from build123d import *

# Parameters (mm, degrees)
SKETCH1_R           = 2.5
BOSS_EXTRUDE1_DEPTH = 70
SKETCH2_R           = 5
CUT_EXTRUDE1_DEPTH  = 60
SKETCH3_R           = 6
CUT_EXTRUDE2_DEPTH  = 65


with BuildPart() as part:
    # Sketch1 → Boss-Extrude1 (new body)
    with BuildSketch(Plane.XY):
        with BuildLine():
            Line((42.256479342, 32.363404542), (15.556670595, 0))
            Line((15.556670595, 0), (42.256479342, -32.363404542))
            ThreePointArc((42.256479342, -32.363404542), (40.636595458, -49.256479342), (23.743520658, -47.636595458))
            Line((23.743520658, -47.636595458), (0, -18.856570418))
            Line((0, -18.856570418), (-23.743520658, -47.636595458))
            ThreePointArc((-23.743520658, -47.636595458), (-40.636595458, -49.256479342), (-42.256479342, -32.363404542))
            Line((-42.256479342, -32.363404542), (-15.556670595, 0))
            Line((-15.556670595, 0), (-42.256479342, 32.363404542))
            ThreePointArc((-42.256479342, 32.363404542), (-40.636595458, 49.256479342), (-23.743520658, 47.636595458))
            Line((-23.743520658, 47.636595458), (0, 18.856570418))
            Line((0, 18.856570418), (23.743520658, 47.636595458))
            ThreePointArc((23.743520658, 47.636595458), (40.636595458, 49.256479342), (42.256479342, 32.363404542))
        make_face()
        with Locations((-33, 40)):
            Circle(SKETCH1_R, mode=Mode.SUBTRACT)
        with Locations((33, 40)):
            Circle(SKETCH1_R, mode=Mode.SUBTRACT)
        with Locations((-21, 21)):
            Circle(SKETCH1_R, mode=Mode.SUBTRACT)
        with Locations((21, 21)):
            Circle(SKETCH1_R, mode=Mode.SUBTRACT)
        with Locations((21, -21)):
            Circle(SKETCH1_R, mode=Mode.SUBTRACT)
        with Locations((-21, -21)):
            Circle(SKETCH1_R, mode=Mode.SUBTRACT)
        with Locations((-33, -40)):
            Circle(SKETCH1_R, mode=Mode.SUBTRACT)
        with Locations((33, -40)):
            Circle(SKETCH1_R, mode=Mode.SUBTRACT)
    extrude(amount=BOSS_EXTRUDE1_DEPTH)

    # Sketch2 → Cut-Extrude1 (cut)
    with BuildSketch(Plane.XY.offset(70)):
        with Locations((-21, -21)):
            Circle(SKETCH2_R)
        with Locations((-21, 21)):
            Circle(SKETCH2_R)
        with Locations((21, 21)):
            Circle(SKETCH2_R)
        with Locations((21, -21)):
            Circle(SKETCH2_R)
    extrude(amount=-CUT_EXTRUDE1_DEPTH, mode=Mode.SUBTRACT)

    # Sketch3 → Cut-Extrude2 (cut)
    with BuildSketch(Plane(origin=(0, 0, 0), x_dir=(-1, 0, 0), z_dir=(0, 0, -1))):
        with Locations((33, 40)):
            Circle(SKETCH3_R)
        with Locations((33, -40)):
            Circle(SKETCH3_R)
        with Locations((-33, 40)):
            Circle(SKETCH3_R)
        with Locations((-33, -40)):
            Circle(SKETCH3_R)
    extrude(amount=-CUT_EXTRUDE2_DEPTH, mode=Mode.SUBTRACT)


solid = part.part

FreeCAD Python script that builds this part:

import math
import FreeCAD as App
import Part
import Sketcher
from FreeCAD import Vector

doc = App.newDocument("Part")
params = doc.addObject("Spreadsheet::Sheet", "Params")
for row, (alias, value) in enumerate([
    ("sketch1_diameter", "5 mm"),
    ("sketch1_radius", "12 mm"),
    ("pad1_length", "70 mm"),
    ("sketch2_diameter", "10 mm"),
    ("pocket1_length", "60 mm"),
    ("sketch3_diameter", "12 mm"),
    ("pocket2_length", "65 mm"),
], start=1):
    params.set(f"A{row}", alias)
    params.set(f"B{row}", "=" + value)
    params.setAlias(f"B{row}", alias)

body = doc.addObject("PartDesign::Body", "Body")

sketch1 = body.newObject("Sketcher::SketchObject", "Sketch")
sketch1.AttachmentSupport = (doc.getObject("XY_Plane"), [""])
sketch1.MapMode = "FlatFace"
sketch1.addGeometry([
    Part.LineSegment(Vector(15.6, 0, 0), Vector(42.3, 32.4, 0)),
    Part.ArcOfCircle(Part.Circle(Vector(33, 40, 0), Vector(0, 0, 1), 12), math.radians(-40), math.radians(140)),
    Part.LineSegment(Vector(23.7, 47.6, 0), Vector(0, 18.9, 0)),
    Part.LineSegment(Vector(0, 18.9, 0), Vector(-23.7, 47.6, 0)),
    Part.ArcOfCircle(Part.Circle(Vector(-33, 40, 0), Vector(0, 0, 1), 12), math.radians(40), math.radians(220)),
    Part.LineSegment(Vector(-42.3, 32.4, 0), Vector(-15.6, 0, 0)),
    Part.LineSegment(Vector(-15.6, 0, 0), Vector(-42.3, -32.4, 0)),
    Part.ArcOfCircle(Part.Circle(Vector(-33, -40, 0), Vector(0, 0, 1), 12), math.radians(140), math.radians(320)),
    Part.LineSegment(Vector(-23.7, -47.6, 0), Vector(0, -18.9, 0)),
    Part.LineSegment(Vector(0, -18.9, 0), Vector(23.7, -47.6, 0)),
    Part.ArcOfCircle(Part.Circle(Vector(33, -40, 0), Vector(0, 0, 1), 12), math.radians(-140), math.radians(40)),
    Part.LineSegment(Vector(42.3, -32.4, 0), Vector(15.6, 0, 0)),
    Part.Circle(Vector(33, -40, 0), Vector(0, 0, 1), 2.5),
    Part.Circle(Vector(21, -21, 0), Vector(0, 0, 1), 2.5),
    Part.Circle(Vector(-33, -40, 0), Vector(0, 0, 1), 2.5),
    Part.Circle(Vector(-21, -21, 0), Vector(0, 0, 1), 2.5),
    Part.Circle(Vector(21, 21, 0), Vector(0, 0, 1), 2.5),
    Part.Circle(Vector(33, 40, 0), Vector(0, 0, 1), 2.5),
    Part.Circle(Vector(-21, 21, 0), Vector(0, 0, 1), 2.5),
    Part.Circle(Vector(-33, 40, 0), Vector(0, 0, 1), 2.5),
], False)
sketch1.addConstraint([
    Sketcher.Constraint("Tangent", 0, 2, 1, 1),
    Sketcher.Constraint("Tangent", 1, 2, 2, 1),
    Sketcher.Constraint("Coincident", 2, 2, 3, 1),
    Sketcher.Constraint("Tangent", 3, 2, 4, 1),
    Sketcher.Constraint("Tangent", 4, 2, 5, 1),
    Sketcher.Constraint("Coincident", 5, 2, 6, 1),
    Sketcher.Constraint("Tangent", 6, 2, 7, 1),
    Sketcher.Constraint("Tangent", 7, 2, 8, 1),
    Sketcher.Constraint("Coincident", 8, 2, 9, 1),
    Sketcher.Constraint("Tangent", 9, 2, 10, 1),
    Sketcher.Constraint("Tangent", 10, 2, 11, 1),
    Sketcher.Constraint("Coincident", 11, 2, 0, 1),
    Sketcher.Constraint("Coincident", 12, 3, 10, 3),
    Sketcher.Constraint("Coincident", 14, 3, 7, 3),
    Sketcher.Constraint("Coincident", 17, 3, 1, 3),
    Sketcher.Constraint("Coincident", 19, 3, 4, 3),
    Sketcher.Constraint("Equal", 1, 4),
    Sketcher.Constraint("Equal", 4, 7),
    Sketcher.Constraint("Equal", 7, 10),
    Sketcher.Constraint("Equal", 12, 13),
    Sketcher.Constraint("Equal", 13, 14),
    Sketcher.Constraint("Equal", 14, 15),
    Sketcher.Constraint("Equal", 15, 16),
    Sketcher.Constraint("Equal", 16, 17),
    Sketcher.Constraint("Equal", 17, 18),
    Sketcher.Constraint("Equal", 18, 19),
    Sketcher.Constraint("Symmetric", 1, 3, 7, 3, -1, 1),
    Sketcher.Constraint("Symmetric", 4, 3, 10, 3, -1, 1),
    Sketcher.Constraint("Symmetric", 15, 3, 16, 3, -1, 1),
    Sketcher.Constraint("Symmetric", 13, 3, 18, 3, -1, 1),
    Sketcher.Constraint("Symmetric", 2, 2, 8, 2, -1, 1),
    Sketcher.Constraint("Symmetric", 5, 2, 11, 2, -1, 1),
    Sketcher.Constraint("Symmetric", 1, 3, 4, 3, -2),
    Sketcher.Constraint("Symmetric", 13, 3, 15, 3, -2),
    Sketcher.Constraint("PointOnObject", 2, 2, -2),
    Sketcher.Constraint("PointOnObject", 5, 2, -1),
    Sketcher.Constraint("Parallel", 0, 2),
    Sketcher.Constraint("Diameter", 12, 5.0),
    Sketcher.Constraint("Radius", 1, 12.0),
    Sketcher.Constraint("DistanceX", -1, 1, 1, 3, 33.0),
    Sketcher.Constraint("DistanceY", -1, 1, 1, 3, 40.0),
    Sketcher.Constraint("DistanceX", -1, 1, 13, 3, 21.0),
    Sketcher.Constraint("DistanceY", 13, 3, -1, 1, 21.0),
    Sketcher.Constraint("Distance", 0, 41.955569),
])
sketch1.setExpression("Constraints[37]", "Params.sketch1_diameter")
sketch1.setExpression("Constraints[38]", "Params.sketch1_radius")
pad1 = body.newObject("PartDesign::Pad", "Pad")
pad1.Profile = sketch1
pad1.setExpression("Length", "Params.pad1_length")

sketch2 = body.newObject("Sketcher::SketchObject", "Sketch001")
sketch2.AttachmentSupport = (doc.getObject("XY_Plane"), [""])
sketch2.MapMode = "FlatFace"
sketch2.AttachmentOffset = App.Placement(Vector(0, 0, 70), App.Rotation())
sketch2.addGeometry([
    Part.Circle(Vector(-21, -21, 0), Vector(0, 0, 1), 5),
    Part.Circle(Vector(-21, 21, 0), Vector(0, 0, 1), 5),
    Part.Circle(Vector(21, 21, 0), Vector(0, 0, 1), 5),
    Part.Circle(Vector(21, -21, 0), Vector(0, 0, 1), 5),
], False)
sketch2.addConstraint([
    Sketcher.Constraint("Equal", 0, 1),
    Sketcher.Constraint("Equal", 1, 2),
    Sketcher.Constraint("Equal", 2, 3),
    Sketcher.Constraint("Symmetric", 0, 3, 2, 3, -1, 1),
    Sketcher.Constraint("Symmetric", 1, 3, 3, 3, -1, 1),
    Sketcher.Constraint("Symmetric", 1, 3, 2, 3, -2),
    Sketcher.Constraint("Diameter", 0, 10.0),
    Sketcher.Constraint("DistanceX", 0, 3, -1, 1, 21.0),
    Sketcher.Constraint("DistanceY", 0, 3, -1, 1, 21.0),
])
sketch2.setExpression("Constraints[6]", "Params.sketch2_diameter")
pocket1 = body.newObject("PartDesign::Pocket", "Pocket")
pocket1.Profile = sketch2
pocket1.setExpression("Length", "Params.pocket1_length")

sketch3 = body.newObject("Sketcher::SketchObject", "Sketch002")
sketch3.AttachmentSupport = (doc.getObject("XY_Plane"), [""])
sketch3.MapMode = "FlatFace"
sketch3.addGeometry([
    Part.Circle(Vector(-33, 40, 0), Vector(0, 0, 1), 6),
    Part.Circle(Vector(-33, -40, 0), Vector(0, 0, 1), 6),
    Part.Circle(Vector(33, 40, 0), Vector(0, 0, 1), 6),
    Part.Circle(Vector(33, -40, 0), Vector(0, 0, 1), 6),
], False)
sketch3.addConstraint([
    Sketcher.Constraint("Equal", 0, 1),
    Sketcher.Constraint("Equal", 1, 2),
    Sketcher.Constraint("Equal", 2, 3),
    Sketcher.Constraint("Symmetric", 1, 3, 2, 3, -1, 1),
    Sketcher.Constraint("Symmetric", 0, 3, 3, 3, -1, 1),
    Sketcher.Constraint("Symmetric", 0, 3, 2, 3, -2),
    Sketcher.Constraint("Diameter", 0, 12.0),
    Sketcher.Constraint("DistanceX", 0, 3, -1, 1, 33.0),
    Sketcher.Constraint("DistanceY", -1, 1, 0, 3, 40.0),
])
sketch3.setExpression("Constraints[6]", "Params.sketch3_diameter")
pocket2 = body.newObject("PartDesign::Pocket", "Pocket001")
pocket2.Profile = sketch3
pocket2.setExpression("Length", "Params.pocket2_length")
pocket2.Reversed = True

doc.recompute()
